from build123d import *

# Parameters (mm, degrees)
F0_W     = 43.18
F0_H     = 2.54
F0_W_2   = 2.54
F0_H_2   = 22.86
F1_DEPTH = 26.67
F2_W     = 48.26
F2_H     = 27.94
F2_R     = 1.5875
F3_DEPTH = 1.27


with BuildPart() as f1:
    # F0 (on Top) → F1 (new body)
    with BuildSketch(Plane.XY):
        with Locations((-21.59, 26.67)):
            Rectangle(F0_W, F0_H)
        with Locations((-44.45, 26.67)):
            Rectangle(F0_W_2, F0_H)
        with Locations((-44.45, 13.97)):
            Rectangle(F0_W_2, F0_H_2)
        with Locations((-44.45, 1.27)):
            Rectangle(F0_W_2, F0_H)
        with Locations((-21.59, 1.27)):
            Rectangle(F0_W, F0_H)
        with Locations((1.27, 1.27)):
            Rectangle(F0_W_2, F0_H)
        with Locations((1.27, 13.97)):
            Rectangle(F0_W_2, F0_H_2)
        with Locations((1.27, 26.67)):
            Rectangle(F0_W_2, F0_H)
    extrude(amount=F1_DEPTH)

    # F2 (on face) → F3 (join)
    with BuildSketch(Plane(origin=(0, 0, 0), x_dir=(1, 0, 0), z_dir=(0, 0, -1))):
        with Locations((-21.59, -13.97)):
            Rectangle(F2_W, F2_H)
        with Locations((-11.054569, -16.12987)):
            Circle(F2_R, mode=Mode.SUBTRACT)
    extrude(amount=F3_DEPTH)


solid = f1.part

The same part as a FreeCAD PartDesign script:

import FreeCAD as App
import Part
import Sketcher
Q = App.Units.Quantity


def add_polygon(sketch, points):
    """Adds a closed chain of lines whose ends are joined by coincident constraints."""
    first, n = sketch.GeometryCount, len(points)
    for a, b in zip(points, points[1:] + points[:1]):
        sketch.addGeometry(Part.LineSegment(App.Vector(*a, 0), App.Vector(*b, 0)), False)
    for i in range(n):
        sketch.addConstraint(Sketcher.Constraint("Coincident", first + i, 2, first + (i + 1) % n, 1))

doc = App.newDocument("Part")
body = doc.addObject("PartDesign::Body", "Body")

sketch1 = doc.addObject("Sketcher::SketchObject", "Sketch")
body.addObject(sketch1)
sketch1.AttachmentSupport = (doc.XY_Plane, [""])
sketch1.MapMode = "FlatFace"
add_polygon(sketch1, [(3, 0), (3, 28), (-46, 28), (-46, 0)])
add_polygon(sketch1, [(-43, 25), (0, 25), (0, 3), (-43, 3)])
sketch1.addConstraint([
    Sketcher.Constraint("Vertical", 0),
    Sketcher.Constraint("Horizontal", 1),
    Sketcher.Constraint("Vertical", 2),
    Sketcher.Constraint("Horizontal", 3),
    Sketcher.Constraint("Horizontal", 4),
    Sketcher.Constraint("Vertical", 5),
    Sketcher.Constraint("Horizontal", 6),
    Sketcher.Constraint("Vertical", 7),
    Sketcher.Constraint("PointOnObject", 2, 2, -1),
    Sketcher.Constraint("PointOnObject", 4, 2, -2),
    Sketcher.Constraint("DistanceX", 1, 2, 1, 1, Q("1.9 in")),
    Sketcher.Constraint("DistanceX", 4, 1, 4, 2, Q("1.7 in")),
    Sketcher.Constraint("DistanceY", 0, 1, 0, 2, Q("1.1 in")),
    Sketcher.Constraint("DistanceY", 5, 2, 5, 1, Q("0.9 in")),
    Sketcher.Constraint("DistanceY", -1, 1, 4, 2, Q("1 in")),
    Sketcher.Constraint("DistanceX", -1, 1, 0, 2, Q("0.1 in")),
])
pad1 = doc.addObject("PartDesign::Pad", "Pad")
body.addObject(pad1)
pad1.Profile = sketch1
pad1.Length = Q("1.05 in")

sketch2 = doc.addObject("Sketcher::SketchObject", "Sketch001")
body.addObject(sketch2)
sketch2.AttachmentSupport = (doc.XY_Plane, [""])
sketch2.MapMode = "FlatFace"
add_polygon(sketch2, [(-45.7, 0), (-45.7, 27.9), (2.5, 27.9), (2.5, 0)])
sketch2.addGeometry(Part.Circle(App.Vector(-11.1, 16.1, 0), App.Vector(0, 0, 1), 1.6), False)
sketch2.addConstraint([
    Sketcher.Constraint("Vertical", 0),
    Sketcher.Constraint("Horizontal", 1),
    Sketcher.Constraint("Vertical", 2),
    Sketcher.Constraint("Horizontal", 3),
    Sketcher.Constraint("PointOnObject", 2, 2, -1),
    Sketcher.Constraint("Diameter", 4, Q("0.125 in")),
    Sketcher.Constraint("DistanceX", 1, 1, 1, 2, Q("1.9 in")),
    Sketcher.Constraint("DistanceY", 0, 1, 0, 2, Q("1.1 in")),
    Sketcher.Constraint("DistanceX", 0, 2, -1, 1, Q("1.8 in")),
    Sketcher.Constraint("DistanceX", 4, 3, -1, 1, Q("11.054569 mm")),
    Sketcher.Constraint("DistanceY", -1, 1, 4, 3, Q("16.12987 mm")),
])
pad2 = doc.addObject("PartDesign::Pad", "Pad001")
body.addObject(pad2)
pad2.Profile = sketch2
pad2.Length = Q("0.05 in")
pad2.Reversed = True

doc.recompute()
